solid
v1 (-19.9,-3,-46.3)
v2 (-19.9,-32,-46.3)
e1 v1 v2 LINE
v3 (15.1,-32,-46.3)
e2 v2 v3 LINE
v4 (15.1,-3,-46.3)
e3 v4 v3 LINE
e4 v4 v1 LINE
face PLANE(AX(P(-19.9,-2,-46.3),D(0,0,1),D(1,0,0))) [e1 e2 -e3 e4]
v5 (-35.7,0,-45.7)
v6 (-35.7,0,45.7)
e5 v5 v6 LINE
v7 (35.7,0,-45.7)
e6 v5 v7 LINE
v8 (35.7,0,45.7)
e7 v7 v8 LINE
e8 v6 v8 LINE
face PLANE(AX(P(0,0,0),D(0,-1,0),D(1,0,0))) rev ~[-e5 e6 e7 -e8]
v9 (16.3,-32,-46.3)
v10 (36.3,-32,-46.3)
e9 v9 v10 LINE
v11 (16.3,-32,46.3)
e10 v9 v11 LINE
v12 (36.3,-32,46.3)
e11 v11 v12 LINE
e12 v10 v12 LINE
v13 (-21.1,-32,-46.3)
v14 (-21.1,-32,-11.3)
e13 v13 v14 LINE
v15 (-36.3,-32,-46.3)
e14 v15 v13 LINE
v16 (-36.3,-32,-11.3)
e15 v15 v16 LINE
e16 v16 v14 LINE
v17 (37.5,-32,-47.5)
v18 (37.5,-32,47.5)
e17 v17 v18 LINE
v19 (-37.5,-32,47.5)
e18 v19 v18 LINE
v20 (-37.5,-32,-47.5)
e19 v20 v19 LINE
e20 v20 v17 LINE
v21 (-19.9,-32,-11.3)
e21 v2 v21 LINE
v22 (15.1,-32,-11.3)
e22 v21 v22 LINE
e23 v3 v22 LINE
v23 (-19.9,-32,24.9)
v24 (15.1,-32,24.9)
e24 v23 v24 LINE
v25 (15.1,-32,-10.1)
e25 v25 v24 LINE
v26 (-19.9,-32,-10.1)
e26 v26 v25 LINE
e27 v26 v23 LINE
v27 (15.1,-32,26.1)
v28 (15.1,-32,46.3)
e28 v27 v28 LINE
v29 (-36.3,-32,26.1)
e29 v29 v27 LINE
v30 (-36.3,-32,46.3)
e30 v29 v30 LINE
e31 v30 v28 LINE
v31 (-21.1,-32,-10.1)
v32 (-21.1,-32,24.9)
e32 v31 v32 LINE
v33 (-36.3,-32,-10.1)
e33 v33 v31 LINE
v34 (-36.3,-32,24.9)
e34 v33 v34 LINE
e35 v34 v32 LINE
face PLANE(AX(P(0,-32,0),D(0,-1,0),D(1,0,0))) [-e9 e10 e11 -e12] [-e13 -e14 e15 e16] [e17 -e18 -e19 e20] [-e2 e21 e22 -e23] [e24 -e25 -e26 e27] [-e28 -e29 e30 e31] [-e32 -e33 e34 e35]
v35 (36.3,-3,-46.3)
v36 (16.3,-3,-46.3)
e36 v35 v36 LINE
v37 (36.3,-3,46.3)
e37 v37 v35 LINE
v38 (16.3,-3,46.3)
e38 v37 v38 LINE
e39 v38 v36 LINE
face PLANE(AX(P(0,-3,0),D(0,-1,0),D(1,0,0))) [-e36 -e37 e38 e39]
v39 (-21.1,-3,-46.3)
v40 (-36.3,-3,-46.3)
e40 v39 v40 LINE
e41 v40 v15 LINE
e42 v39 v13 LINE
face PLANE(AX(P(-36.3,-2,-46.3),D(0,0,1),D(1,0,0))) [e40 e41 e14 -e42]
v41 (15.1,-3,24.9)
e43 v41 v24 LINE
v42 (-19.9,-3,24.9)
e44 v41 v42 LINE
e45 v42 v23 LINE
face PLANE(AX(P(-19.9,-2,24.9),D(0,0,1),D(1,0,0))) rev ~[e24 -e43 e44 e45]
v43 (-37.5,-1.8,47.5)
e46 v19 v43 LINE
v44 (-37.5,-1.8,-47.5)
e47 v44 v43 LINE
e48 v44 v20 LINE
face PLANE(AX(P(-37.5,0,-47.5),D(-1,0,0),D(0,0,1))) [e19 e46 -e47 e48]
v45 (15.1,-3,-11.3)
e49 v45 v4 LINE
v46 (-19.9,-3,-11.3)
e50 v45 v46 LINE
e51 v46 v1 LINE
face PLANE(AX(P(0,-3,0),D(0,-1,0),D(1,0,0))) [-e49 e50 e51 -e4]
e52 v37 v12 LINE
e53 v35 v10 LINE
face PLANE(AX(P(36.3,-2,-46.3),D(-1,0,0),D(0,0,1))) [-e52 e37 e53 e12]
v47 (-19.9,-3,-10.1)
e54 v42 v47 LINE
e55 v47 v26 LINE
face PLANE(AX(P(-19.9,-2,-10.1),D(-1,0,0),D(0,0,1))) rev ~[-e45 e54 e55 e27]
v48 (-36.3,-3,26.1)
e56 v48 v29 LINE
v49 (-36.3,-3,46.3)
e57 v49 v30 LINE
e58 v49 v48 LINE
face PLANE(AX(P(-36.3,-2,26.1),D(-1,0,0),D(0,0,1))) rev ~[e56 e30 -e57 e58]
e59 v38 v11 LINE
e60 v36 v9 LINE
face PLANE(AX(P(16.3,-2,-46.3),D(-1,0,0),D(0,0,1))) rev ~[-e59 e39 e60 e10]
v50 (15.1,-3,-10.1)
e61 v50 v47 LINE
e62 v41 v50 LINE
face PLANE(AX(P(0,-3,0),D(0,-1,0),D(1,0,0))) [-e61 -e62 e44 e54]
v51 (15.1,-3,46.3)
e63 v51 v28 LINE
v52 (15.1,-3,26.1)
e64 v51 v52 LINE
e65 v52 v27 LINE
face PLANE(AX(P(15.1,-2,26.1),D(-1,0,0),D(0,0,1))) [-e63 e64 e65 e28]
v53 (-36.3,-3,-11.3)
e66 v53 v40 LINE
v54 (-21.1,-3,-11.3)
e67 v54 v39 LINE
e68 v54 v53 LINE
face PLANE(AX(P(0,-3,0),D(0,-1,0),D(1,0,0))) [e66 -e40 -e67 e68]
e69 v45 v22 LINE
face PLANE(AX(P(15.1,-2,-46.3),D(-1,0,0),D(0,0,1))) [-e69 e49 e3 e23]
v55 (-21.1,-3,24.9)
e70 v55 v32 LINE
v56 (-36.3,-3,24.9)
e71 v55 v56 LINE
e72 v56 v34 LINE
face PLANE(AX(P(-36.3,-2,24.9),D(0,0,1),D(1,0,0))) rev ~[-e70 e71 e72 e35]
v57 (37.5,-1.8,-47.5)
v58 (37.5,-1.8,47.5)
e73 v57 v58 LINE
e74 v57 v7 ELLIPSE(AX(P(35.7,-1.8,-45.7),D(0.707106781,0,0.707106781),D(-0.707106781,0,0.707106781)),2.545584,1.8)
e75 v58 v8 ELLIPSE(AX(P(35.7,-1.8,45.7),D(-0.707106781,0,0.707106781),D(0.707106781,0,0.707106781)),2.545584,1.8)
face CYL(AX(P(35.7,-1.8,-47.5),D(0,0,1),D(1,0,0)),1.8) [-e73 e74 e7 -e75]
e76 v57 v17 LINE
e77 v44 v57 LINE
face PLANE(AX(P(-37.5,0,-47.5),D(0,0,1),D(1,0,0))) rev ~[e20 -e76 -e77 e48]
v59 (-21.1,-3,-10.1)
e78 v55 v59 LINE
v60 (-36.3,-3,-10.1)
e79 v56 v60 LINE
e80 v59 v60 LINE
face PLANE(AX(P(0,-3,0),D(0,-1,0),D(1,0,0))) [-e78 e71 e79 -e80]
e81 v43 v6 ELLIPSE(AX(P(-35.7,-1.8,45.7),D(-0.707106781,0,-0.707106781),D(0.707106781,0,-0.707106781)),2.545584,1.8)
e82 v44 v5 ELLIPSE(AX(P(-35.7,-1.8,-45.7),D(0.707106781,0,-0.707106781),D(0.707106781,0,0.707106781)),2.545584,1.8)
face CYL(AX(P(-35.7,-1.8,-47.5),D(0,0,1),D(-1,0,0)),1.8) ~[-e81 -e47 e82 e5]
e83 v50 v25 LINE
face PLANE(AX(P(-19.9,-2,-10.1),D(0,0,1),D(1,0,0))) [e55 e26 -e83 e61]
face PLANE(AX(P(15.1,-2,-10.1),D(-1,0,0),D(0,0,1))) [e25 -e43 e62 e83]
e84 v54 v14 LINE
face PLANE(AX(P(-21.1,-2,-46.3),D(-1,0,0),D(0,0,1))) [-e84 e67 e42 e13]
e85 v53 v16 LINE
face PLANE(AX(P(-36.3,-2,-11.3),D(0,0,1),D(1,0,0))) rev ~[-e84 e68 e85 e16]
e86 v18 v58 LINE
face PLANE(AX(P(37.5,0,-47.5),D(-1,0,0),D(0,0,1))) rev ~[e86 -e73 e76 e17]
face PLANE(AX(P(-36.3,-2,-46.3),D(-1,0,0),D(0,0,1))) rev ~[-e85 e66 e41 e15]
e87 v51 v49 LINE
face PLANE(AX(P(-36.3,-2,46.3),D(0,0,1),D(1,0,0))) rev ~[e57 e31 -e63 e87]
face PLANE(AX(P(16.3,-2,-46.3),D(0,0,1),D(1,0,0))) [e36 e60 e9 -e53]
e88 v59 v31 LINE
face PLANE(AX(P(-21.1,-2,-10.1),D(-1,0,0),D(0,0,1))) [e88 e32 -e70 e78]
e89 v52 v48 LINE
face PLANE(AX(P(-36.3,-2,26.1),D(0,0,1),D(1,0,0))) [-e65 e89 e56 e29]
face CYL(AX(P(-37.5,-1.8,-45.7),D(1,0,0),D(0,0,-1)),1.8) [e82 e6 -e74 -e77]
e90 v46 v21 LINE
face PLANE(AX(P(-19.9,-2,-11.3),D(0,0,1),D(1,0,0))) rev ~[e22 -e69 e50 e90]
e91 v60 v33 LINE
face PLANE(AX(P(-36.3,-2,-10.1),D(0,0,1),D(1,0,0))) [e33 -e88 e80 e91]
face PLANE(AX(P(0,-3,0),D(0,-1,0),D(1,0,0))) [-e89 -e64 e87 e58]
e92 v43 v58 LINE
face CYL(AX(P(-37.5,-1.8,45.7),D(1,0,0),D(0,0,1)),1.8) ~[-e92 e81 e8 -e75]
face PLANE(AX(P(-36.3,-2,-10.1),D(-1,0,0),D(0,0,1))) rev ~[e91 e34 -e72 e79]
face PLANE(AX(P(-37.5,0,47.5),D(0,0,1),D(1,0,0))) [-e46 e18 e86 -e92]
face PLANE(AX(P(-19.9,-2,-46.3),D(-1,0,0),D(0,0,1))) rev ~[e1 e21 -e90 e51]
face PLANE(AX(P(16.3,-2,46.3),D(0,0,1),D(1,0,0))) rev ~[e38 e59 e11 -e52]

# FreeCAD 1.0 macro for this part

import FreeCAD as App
import Part
import Sketcher

V = App.Vector
Q = App.Units.Quantity


def edges_at(feature, points):
    """Names of the edges that pass closest to the given points."""
    edges = feature.Shape.Edges
    near = lambda p: min(range(len(edges)), key=lambda i: edges[i].distToShape(Part.Vertex(*p))[0])
    return sorted({f"Edge{near(p) + 1}" for p in points})


def add_polygon(sketch, points):
    """Adds a closed chain of lines whose ends are joined by coincident constraints."""
    first, n = sketch.GeometryCount, len(points)
    for a, b in zip(points, points[1:] + points[:1]):
        sketch.addGeometry(Part.LineSegment(App.Vector(*a, 0), App.Vector(*b, 0)), False)
    for i in range(n):
        sketch.addConstraint(Sketcher.Constraint("Coincident", first + i, 2, first + (i + 1) % n, 1))

doc = App.newDocument("Part")
body = doc.addObject("PartDesign::Body", "Body")

# Sketch on XZ plane
sketch1 = body.newObject("Sketcher::SketchObject", "Sketch")
sketch1.AttachmentSupport = (doc.getObject("XZ_Plane"), [""])
sketch1.MapMode = "FlatFace"
add_polygon(sketch1, [(-38, 48), (-38, -48), (38, -48), (38, 48)])  # lines 0-3
sketch1.addConstraint([
    Sketcher.Constraint("Vertical", 0),
    Sketcher.Constraint("Horizontal", 1),
    Sketcher.Constraint("Vertical", 2),
    Sketcher.Constraint("Horizontal", 3),
    Sketcher.Constraint("Symmetric", 0, 2, 2, 2, -1, 1),
    Sketcher.Constraint("DistanceX", 1, 1, 1, 2, Q("75 mm")),
    Sketcher.Constraint("DistanceY", 0, 2, 0, 1, Q("95 mm")),
])
pad1 = body.newObject("PartDesign::Pad", "Pad")
pad1.Profile = sketch1
pad1.Length = 3

# Sketch on XZ plane
sketch2 = body.newObject("Sketcher::SketchObject", "Sketch001")
sketch2.AttachmentSupport = (doc.getObject("XZ_Plane"), [""])
sketch2.MapMode = "FlatFace"
sketch2.AttachmentOffset = App.Placement(V(0, 0, 2), App.Rotation())
add_polygon(sketch2, [(-38, 48), (-38, -48), (38, -48), (38, 48)])  # lines 0-3
add_polygon(sketch2, [(-21, -46), (-36, -46), (-36, -11), (-21, -11)])  # lines 4-7
add_polygon(sketch2, [(15, -46), (-20, -46), (-20, -11), (15, -11)])  # lines 8-11
add_polygon(sketch2, [(-21, -10), (-36, -10), (-36, 25), (-21, 25)])  # lines 12-15
add_polygon(sketch2, [(15, -10), (-20, -10), (-20, 25), (15, 25)])  # lines 16-19
add_polygon(sketch2, [(15, 26), (-36, 26), (-36, 46), (15, 46)])  # lines 20-23
add_polygon(sketch2, [(36, -46), (16, -46), (16, 46), (36, 46)])  # lines 24-27
sketch2.addConstraint([
    Sketcher.Constraint("Vertical", 0),
    Sketcher.Constraint("Horizontal", 1),
    Sketcher.Constraint("Vertical", 2),
    Sketcher.Constraint("Horizontal", 3),
    Sketcher.Constraint("Horizontal", 4),
    Sketcher.Constraint("Vertical", 5),
    Sketcher.Constraint("Horizontal", 6),
    Sketcher.Constraint("Vertical", 7),
    Sketcher.Constraint("Horizontal", 8),
    Sketcher.Constraint("Vertical", 9),
    Sketcher.Constraint("Horizontal", 10),
    Sketcher.Constraint("Vertical", 11),
    Sketcher.Constraint("Horizontal", 12),
    Sketcher.Constraint("Vertical", 13),
    Sketcher.Constraint("Horizontal", 14),
    Sketcher.Constraint("Vertical", 15),
    Sketcher.Constraint("Horizontal", 16),
    Sketcher.Constraint("Vertical", 17),
    Sketcher.Constraint("Horizontal", 18),
    Sketcher.Constraint("Vertical", 19),
    Sketcher.Constraint("Horizontal", 20),
    Sketcher.Constraint("Vertical", 21),
    Sketcher.Constraint("Horizontal", 22),
    Sketcher.Constraint("Vertical", 23),
    Sketcher.Constraint("Horizontal", 24),
    Sketcher.Constraint("Vertical", 25),
    Sketcher.Constraint("Horizontal", 26),
    Sketcher.Constraint("Vertical", 27),
    Sketcher.Constraint("Symmetric", 0, 2, 2, 2, -1, 1),
    Sketcher.Constraint("Symmetric", 4, 2, 26, 2, -1, 1),
    Sketcher.Constraint("Symmetric", 21, 2, 27, 2, -1, 1),
    Sketcher.Constraint("Symmetric", 11, 2, 22, 2, -1),
    Sketcher.Constraint("Horizontal", 7, 2, 8, 2),
    Sketcher.Constraint("Horizontal", 6, 2, 9, 2),
    Sketcher.Constraint("Horizontal", 15, 2, 16, 2),
    Sketcher.Constraint("Horizontal", 14, 2, 17, 2),
    Sketcher.Constraint("Vertical", 5, 2, 12, 2),
    Sketcher.Constraint("Vertical", 7, 2, 14, 2),
    Sketcher.Constraint("Vertical", 9, 2, 16, 2),
    Sketcher.Constraint("Vertical", 11, 2, 18, 2),
    Sketcher.Constraint("Equal", 18, 5),
    Sketcher.Constraint("Equal", 11, 13),
    Sketcher.Constraint("DistanceX", 1, 1, 1, 2, Q("75 mm")),
    Sketcher.Constraint("DistanceX", 8, 2, 8, 1, Q("35 mm")),
    Sketcher.Constraint("DistanceX", 24, 2, 24, 1, Q("20 mm")),
    Sketcher.Constraint("DistanceY", 0, 2, 0, 1, Q("95 mm")),
    Sketcher.Constraint("DistanceX", 4, 2, 4, 1, Q("15.2 mm")),
    Sketcher.Constraint("DistanceX", 20, 2, 20, 1, Q("51.4 mm")),
    Sketcher.Constraint("DistanceY", 21, 1, 21, 2, Q("20.2 mm")),
    Sketcher.Constraint("DistanceY", 25, 1, 25, 2, Q("92.6 mm")),
    Sketcher.Constraint("DistanceX", 4, 2, -1, 1, Q("36.3 mm")),
    Sketcher.Constraint("DistanceY", 12, 2, -1, 1, Q("10.1 mm")),
])
pad2 = body.newObject("PartDesign::Pad", "Pad001")
pad2.Profile = sketch2
pad2.Length = 30
doc.recompute()

fillet = body.newObject("PartDesign::Fillet", "Fillet")
fillet.Base = (pad2, edges_at(pad2, [
    (0, 0, 47.5),
    (37.5, 0, 0),
    (0, 0, -47.5),
    (-37.5, 0, 0),
]))
fillet.Radius = 1.8

doc.recompute()
